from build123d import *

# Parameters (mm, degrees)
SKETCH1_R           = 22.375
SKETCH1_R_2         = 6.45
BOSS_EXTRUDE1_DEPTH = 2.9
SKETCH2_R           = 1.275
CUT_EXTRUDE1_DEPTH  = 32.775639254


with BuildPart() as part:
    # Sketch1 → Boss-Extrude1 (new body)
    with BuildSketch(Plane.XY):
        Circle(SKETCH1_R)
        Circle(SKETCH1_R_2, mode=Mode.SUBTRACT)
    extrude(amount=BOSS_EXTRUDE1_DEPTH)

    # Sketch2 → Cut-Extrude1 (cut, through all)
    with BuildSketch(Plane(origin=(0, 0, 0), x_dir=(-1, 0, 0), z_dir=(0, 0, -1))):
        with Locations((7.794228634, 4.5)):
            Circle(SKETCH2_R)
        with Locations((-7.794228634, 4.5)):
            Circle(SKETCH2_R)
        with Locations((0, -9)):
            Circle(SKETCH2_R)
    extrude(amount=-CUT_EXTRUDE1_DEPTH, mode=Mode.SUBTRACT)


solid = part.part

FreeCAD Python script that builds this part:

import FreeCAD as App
import Part
import Sketcher
from FreeCAD import Vector
Q = App.Units.Quantity

doc = App.newDocument("Part")
body = doc.addObject("PartDesign::Body", "Body")

# Sketch on XY plane
sketch1 = doc.addObject("Sketcher::SketchObject", "Sketch")
body.addObject(sketch1)
sketch1.AttachmentSupport = (doc.XY_Plane, [""])
sketch1.MapMode = "FlatFace"
sketch1.addGeometry(Part.Circle(Vector(0, 0, 0), Vector(0, 0, 1), 22), False)
sketch1.addGeometry(Part.Circle(Vector(0, 0, 0), Vector(0, 0, 1), 6), False)
sketch1.addConstraint(Sketcher.Constraint("Coincident", 0, 3, -1, 1))
sketch1.addConstraint(Sketcher.Constraint("Coincident", 1, 3, -1, 1))
sketch1.addConstraint(Sketcher.Constraint("Diameter", 1, Q("12.9 mm")))
sketch1.addConstraint(Sketcher.Constraint("Diameter", 0, Q("44.75 mm")))
pad1 = doc.addObject("PartDesign::Pad", "Pad")
body.addObject(pad1)
pad1.Profile = sketch1
pad1.Length = 2.9

# Sketch on XY plane
sketch2 = doc.addObject("Sketcher::SketchObject", "Sketch001")
body.addObject(sketch2)
sketch2.AttachmentSupport = (doc.XY_Plane, [""])
sketch2.MapMode = "FlatFace"
sketch2.addGeometry(Part.Circle(Vector(-7.8, 4.5, 0), Vector(0, 0, 1), 1.3), False)
sketch2.addGeometry(Part.Circle(Vector(7.8, 4.5, 0), Vector(0, 0, 1), 1.3), False)
sketch2.addGeometry(Part.Circle(Vector(0, -9, 0), Vector(0, 0, 1), 1.3), False)
sketch2.addConstraint(Sketcher.Constraint("Equal", 0, 1))
sketch2.addConstraint(Sketcher.Constraint("Equal", 1, 2))
sketch2.addConstraint(Sketcher.Constraint("Symmetric", 0, 3, 1, 3, -2))
sketch2.addConstraint(Sketcher.Constraint("PointOnObject", 2, 3, -2))
sketch2.addConstraint(Sketcher.Constraint("Diameter", 0, Q("2.55 mm")))
sketch2.addConstraint(Sketcher.Constraint("DistanceY", 2, 3, -1, 1, Q("9 mm")))
sketch2.addConstraint(Sketcher.Constraint("DistanceY", -1, 1, 0, 3, Q("4.5 mm")))
sketch2.addConstraint(Sketcher.Constraint("DistanceX", 0, 3, -1, 1, Q("7.794229 mm")))
pocket1 = doc.addObject("PartDesign::Pocket", "Pocket")
body.addObject(pocket1)
pocket1.Profile = sketch2
pocket1.Type = "ThroughAll"
pocket1.Reversed = True

doc.recompute()
